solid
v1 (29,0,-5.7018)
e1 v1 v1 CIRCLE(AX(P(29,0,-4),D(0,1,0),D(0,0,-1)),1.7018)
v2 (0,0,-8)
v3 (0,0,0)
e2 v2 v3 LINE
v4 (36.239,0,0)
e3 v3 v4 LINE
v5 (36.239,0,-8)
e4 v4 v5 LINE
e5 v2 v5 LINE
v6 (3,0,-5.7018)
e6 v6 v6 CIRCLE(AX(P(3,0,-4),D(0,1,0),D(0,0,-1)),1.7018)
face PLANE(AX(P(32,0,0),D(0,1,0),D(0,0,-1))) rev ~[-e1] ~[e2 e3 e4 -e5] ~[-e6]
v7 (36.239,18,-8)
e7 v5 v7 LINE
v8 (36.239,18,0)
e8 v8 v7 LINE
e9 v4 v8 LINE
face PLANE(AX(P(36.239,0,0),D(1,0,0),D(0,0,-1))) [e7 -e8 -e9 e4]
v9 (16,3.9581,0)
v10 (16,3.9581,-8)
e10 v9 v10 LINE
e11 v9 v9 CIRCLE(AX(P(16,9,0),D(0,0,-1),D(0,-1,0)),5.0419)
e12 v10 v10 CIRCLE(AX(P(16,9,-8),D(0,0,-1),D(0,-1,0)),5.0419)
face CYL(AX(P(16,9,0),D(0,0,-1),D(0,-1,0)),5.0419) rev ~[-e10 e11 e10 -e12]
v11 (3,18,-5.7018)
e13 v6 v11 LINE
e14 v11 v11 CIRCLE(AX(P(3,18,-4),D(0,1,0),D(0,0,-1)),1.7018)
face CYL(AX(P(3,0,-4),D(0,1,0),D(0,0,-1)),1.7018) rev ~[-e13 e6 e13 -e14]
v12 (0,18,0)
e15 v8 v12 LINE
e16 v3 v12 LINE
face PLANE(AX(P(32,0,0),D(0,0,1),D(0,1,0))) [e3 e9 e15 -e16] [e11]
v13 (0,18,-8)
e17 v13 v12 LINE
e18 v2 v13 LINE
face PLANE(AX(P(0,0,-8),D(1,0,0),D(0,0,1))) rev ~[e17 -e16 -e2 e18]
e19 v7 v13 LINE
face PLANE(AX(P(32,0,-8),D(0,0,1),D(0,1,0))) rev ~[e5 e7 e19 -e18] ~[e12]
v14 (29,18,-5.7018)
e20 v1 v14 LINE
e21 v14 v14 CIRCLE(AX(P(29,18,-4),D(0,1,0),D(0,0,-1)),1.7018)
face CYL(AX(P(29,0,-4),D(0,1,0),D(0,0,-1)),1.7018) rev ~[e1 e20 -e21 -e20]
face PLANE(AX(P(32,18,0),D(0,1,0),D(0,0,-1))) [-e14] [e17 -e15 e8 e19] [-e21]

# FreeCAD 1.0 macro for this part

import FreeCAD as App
import Part
import Sketcher
from FreeCAD import Vector
Q = App.Units.Quantity

doc = App.newDocument("Part")
body = doc.addObject("PartDesign::Body", "Body")

# Sketch on XZ plane
sketch1 = body.newObject("Sketcher::SketchObject", "Sketch")
sketch1.AttachmentSupport = (doc.getObject("XZ_Plane"), [""])
sketch1.MapMode = "FlatFace"
sketch1.addGeometry([
    Part.LineSegment(Vector(0, -8, 0), Vector(0, 0, 0)),
    Part.LineSegment(Vector(0, 0, 0), Vector(32, 0, 0)),
    Part.LineSegment(Vector(32, 0, 0), Vector(32, -8, 0)),
    Part.LineSegment(Vector(32, -8, 0), Vector(0, -8, 0)),
], False)
sketch1.addConstraint([
    Sketcher.Constraint("Coincident", 0, 2, 1, 1),
    Sketcher.Constraint("Coincident", 1, 2, 2, 1),
    Sketcher.Constraint("Coincident", 2, 2, 3, 1),
    Sketcher.Constraint("Coincident", 3, 2, 0, 1),
    Sketcher.Constraint("Vertical", 0),
    Sketcher.Constraint("Horizontal", 1),
    Sketcher.Constraint("Vertical", 2),
    Sketcher.Constraint("Horizontal", 3),
    Sketcher.Constraint("Coincident", 0, 2, -1, 1),
    Sketcher.Constraint("DistanceY", 0, 1, 0, 2, Q("8 mm")),
    Sketcher.Constraint("DistanceX", 1, 1, 1, 2, Q("32 mm")),
])
pad1 = body.newObject("PartDesign::Pad", "Pad")
pad1.Profile = sketch1
pad1.Length = 18
pad1.Reversed = True

# Sketch on XZ plane
sketch2 = body.newObject("Sketcher::SketchObject", "Sketch001")
sketch2.AttachmentSupport = (doc.getObject("XZ_Plane"), [""])
sketch2.MapMode = "FlatFace"
sketch2.addGeometry([
    Part.Circle(Vector(29, -4, 0), Vector(0, 0, 1), 1.7),
    Part.Circle(Vector(3, -4, 0), Vector(0, 0, 1), 1.7),
], False)
sketch2.addConstraint([
    Sketcher.Constraint("Equal", 0, 1),
    Sketcher.Constraint("Horizontal", 0, 3, 1, 3),
    Sketcher.Constraint("DistanceX", -1, 1, 0, 3, Q("29 mm")),
    Sketcher.Constraint("DistanceY", 0, 3, -1, 1, Q("4 mm")),
    Sketcher.Constraint("DistanceX", -1, 1, 1, 3, Q("3 mm")),
    Sketcher.Constraint("Diameter", 0, Q("3.4036 mm")),
])
doc.recompute()
hole = body.newObject("PartDesign::Hole", "Hole")
hole.Profile = sketch2
hole.ThreadType = "None"
hole.Diameter = 3.4036
hole.DepthType = "ThroughAll"

# Sketch on XY plane
sketch3 = body.newObject("Sketcher::SketchObject", "Sketch002")
sketch3.AttachmentSupport = (doc.getObject("XY_Plane"), [""])
sketch3.MapMode = "FlatFace"
sketch3.addGeometry(Part.Circle(Vector(16, 9, 0), Vector(0, 0, 1), 5), False)
sketch3.addConstraint([
    Sketcher.Constraint("DistanceX", -1, 1, 0, 3, Q("16 mm")),
    Sketcher.Constraint("DistanceY", -1, 1, 0, 3, Q("9 mm")),
    Sketcher.Constraint("Diameter", 0, Q("10.0838 mm")),
])
doc.recompute()
hole2 = body.newObject("PartDesign::Hole", "Hole001")
hole2.Profile = sketch3
hole2.ThreadType = "None"
hole2.Diameter = 10.0838
hole2.DepthType = "ThroughAll"

# Sketch on YZ plane
sketch4 = body.newObject("Sketcher::SketchObject", "Sketch003")
sketch4.AttachmentSupport = (doc.getObject("YZ_Plane"), [""])
sketch4.MapMode = "FlatFace"
sketch4.AttachmentOffset = App.Placement(Vector(0, 0, 32), App.Rotation())
sketch4.addGeometry([
    Part.LineSegment(Vector(18, 0, 0), Vector(0, 0, 0)),
    Part.LineSegment(Vector(0, 0, 0), Vector(0, -8, 0)),
    Part.LineSegment(Vector(0, -8, 0), Vector(18, -8, 0)),
    Part.LineSegment(Vector(18, -8, 0), Vector(18, 0, 0)),
], False)
sketch4.addConstraint([
    Sketcher.Constraint("Coincident", 0, 2, 1, 1),
    Sketcher.Constraint("Coincident", 1, 2, 2, 1),
    Sketcher.Constraint("Coincident", 2, 2, 3, 1),
    Sketcher.Constraint("Coincident", 3, 2, 0, 1),
    Sketcher.Constraint("Horizontal", 0),
    Sketcher.Constraint("Vertical", 1),
    Sketcher.Constraint("Horizontal", 2),
    Sketcher.Constraint("Vertical", 3),
    Sketcher.Constraint("Coincident", 0, 2, -1, 1),
    Sketcher.Constraint("DistanceX", 0, 2, 0, 1, Q("18 mm")),
    Sketcher.Constraint("DistanceY", 1, 2, 1, 1, Q("8 mm")),
])
pad2 = body.newObject("PartDesign::Pad", "Pad001")
pad2.Profile = sketch4
pad2.Length = 4.239

doc.recompute()
